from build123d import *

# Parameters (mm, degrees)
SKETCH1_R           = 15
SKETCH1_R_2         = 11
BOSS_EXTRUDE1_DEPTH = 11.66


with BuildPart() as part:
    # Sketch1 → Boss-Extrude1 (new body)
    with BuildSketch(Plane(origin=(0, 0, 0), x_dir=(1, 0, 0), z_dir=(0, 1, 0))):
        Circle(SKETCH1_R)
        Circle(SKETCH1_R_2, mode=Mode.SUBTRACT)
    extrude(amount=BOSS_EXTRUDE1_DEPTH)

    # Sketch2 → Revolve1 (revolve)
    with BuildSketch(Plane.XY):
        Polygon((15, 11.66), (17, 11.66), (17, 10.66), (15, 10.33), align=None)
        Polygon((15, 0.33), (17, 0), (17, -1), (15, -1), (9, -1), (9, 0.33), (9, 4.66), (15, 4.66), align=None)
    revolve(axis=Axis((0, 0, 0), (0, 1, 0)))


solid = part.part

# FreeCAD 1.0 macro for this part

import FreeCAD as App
import Part
import Sketcher


def add_polygon(sketch, points):
    """Adds a closed chain of lines whose ends are joined by coincident constraints."""
    first, n = sketch.GeometryCount, len(points)
    for a, b in zip(points, points[1:] + points[:1]):
        sketch.addGeometry(Part.LineSegment(App.Vector(*a, 0), App.Vector(*b, 0)), False)
    for i in range(n):
        sketch.addConstraint(Sketcher.Constraint("Coincident", first + i, 2, first + (i + 1) % n, 1))

doc = App.newDocument("Part")
params = doc.addObject("Spreadsheet::Sheet", "Params")
for row, (alias, value) in enumerate([
    ("sketch1_diameter", "30 mm"),
    ("sketch1_diameter2", "22 mm"),
    ("pad1_length", "11.66 mm"),
    ("sketch2_width", "2 mm"),
    ("sketch2_width2", "6 mm"),
    ("sketch2_height", "1 mm"),
    ("sketch2_height2", "1.33 mm"),
    ("revolution_angle", "360 deg"),
], start=1):
    params.set(f"A{row}", alias)
    params.set(f"B{row}", "=" + value)
    params.setAlias(f"B{row}", alias)

body = doc.addObject("PartDesign::Body", "Body")

# Sketch on XZ plane
sketch1 = body.newObject("Sketcher::SketchObject", "Sketch")
sketch1.AttachmentSupport = (doc.getObject("XZ_Plane"), [""])
sketch1.MapMode = "FlatFace"
sketch1.addGeometry(Part.Circle(App.Vector(0, 0, 0), App.Vector(0, 0, 1), 15), False)
sketch1.addGeometry(Part.Circle(App.Vector(0, 0, 0), App.Vector(0, 0, 1), 11), False)
sketch1.addConstraint(Sketcher.Constraint("Coincident", 0, 3, -1, 1))
sketch1.addConstraint(Sketcher.Constraint("Coincident", 1, 3, -1, 1))
sketch1.addConstraint(Sketcher.Constraint("Diameter", 0, 30.0))
sketch1.addConstraint(Sketcher.Constraint("Diameter", 1, 22.0))
sketch1.setExpression("Constraints[2]", "Params.sketch1_diameter")
sketch1.setExpression("Constraints[3]", "Params.sketch1_diameter2")
pad1 = body.newObject("PartDesign::Pad", "Pad")
pad1.Profile = sketch1
pad1.setExpression("Length", "Params.pad1_length")
pad1.Reversed = True

# Sketch on XY plane
sketch2 = body.newObject("Sketcher::SketchObject", "Sketch001")
sketch2.AttachmentSupport = (doc.getObject("XY_Plane"), [""])
sketch2.MapMode = "FlatFace"
add_polygon(sketch2, [(17, 11.7), (15, 11.7), (15, 10.3), (17, 10.7)])  # lines 0-3
add_polygon(sketch2, [(17, 0), (15, 0.3), (15, 4.7), (9, 4.7), (9, -1), (17, -1)])  # lines 4-9
sketch2.addConstraint(Sketcher.Constraint("Horizontal", 0))
sketch2.addConstraint(Sketcher.Constraint("Vertical", 1))
sketch2.addConstraint(Sketcher.Constraint("Vertical", 3))
sketch2.addConstraint(Sketcher.Constraint("Vertical", 5))
sketch2.addConstraint(Sketcher.Constraint("Horizontal", 6))
sketch2.addConstraint(Sketcher.Constraint("Vertical", 7))
sketch2.addConstraint(Sketcher.Constraint("Horizontal", 8))
sketch2.addConstraint(Sketcher.Constraint("Vertical", 9))
sketch2.addConstraint(Sketcher.Constraint("PointOnObject", 9, 2, -1))
sketch2.addConstraint(Sketcher.Constraint("Vertical", 1, 2, 4, 2))
sketch2.addConstraint(Sketcher.Constraint("Vertical", 3, 2, 8, 2))
sketch2.addConstraint(Sketcher.Constraint("Equal", 3, 9))
sketch2.addConstraint(Sketcher.Constraint("Equal", 2, 4))
sketch2.addConstraint(Sketcher.Constraint("DistanceX", 0, 2, 0, 1, 2.0))
sketch2.addConstraint(Sketcher.Constraint("DistanceX", 6, 2, 6, 1, 6.0))
sketch2.addConstraint(Sketcher.Constraint("DistanceY", 3, 1, 3, 2, 1.0))
sketch2.addConstraint(Sketcher.Constraint("DistanceX", -1, 1, 0, 2, 15.0))
sketch2.addConstraint(Sketcher.Constraint("DistanceY", 4, 2, 1, 2, 10.0))
sketch2.addConstraint(Sketcher.Constraint("DistanceY", 5, 2, 2, 2, 6.0))
sketch2.addConstraint(Sketcher.Constraint("DistanceY", 1, 2, 1, 1, 1.33))
sketch2.setExpression("Constraints[23]", "Params.sketch2_width")
sketch2.setExpression("Constraints[24]", "Params.sketch2_width2")
sketch2.setExpression("Constraints[25]", "Params.sketch2_height")
sketch2.setExpression("Constraints[29]", "Params.sketch2_height2")
revolution = body.newObject("PartDesign::Revolution", "Revolution")
revolution.Profile = sketch2
revolution.ReferenceAxis = (sketch2, ["V_Axis"])
revolution.setExpression("Angle", "Params.revolution_angle")

doc.recompute()
